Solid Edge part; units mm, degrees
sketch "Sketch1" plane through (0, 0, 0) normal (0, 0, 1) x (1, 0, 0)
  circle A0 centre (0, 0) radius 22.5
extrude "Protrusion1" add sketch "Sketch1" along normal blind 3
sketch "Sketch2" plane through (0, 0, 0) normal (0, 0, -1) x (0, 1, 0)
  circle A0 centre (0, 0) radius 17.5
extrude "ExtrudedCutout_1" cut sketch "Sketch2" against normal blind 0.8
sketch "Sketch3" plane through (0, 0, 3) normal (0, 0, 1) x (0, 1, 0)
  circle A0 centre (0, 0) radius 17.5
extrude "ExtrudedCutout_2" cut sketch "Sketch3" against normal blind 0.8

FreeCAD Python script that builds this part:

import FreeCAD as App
import Part
import Sketcher

V = App.Vector

doc = App.newDocument("Part")
body = doc.addObject("PartDesign::Body", "Body")

sketch1 = body.newObject("Sketcher::SketchObject", "Sketch")
sketch1.AttachmentSupport = (doc.getObject("XY_Plane"), [""])
sketch1.MapMode = "FlatFace"
sketch1.addGeometry(Part.Circle(V(0, 0, 0), V(0, 0, 1), 22.5), False)
sketch1.addConstraint(Sketcher.Constraint("Coincident", 0, 3, -1, 1))
sketch1.addConstraint(Sketcher.Constraint("Diameter", 0, 45.0))
pad1 = body.newObject("PartDesign::Pad", "Pad")
pad1.Profile = sketch1
pad1.Length = 3

sketch2 = body.newObject("Sketcher::SketchObject", "Sketch001")
sketch2.AttachmentSupport = (doc.getObject("XY_Plane"), [""])
sketch2.MapMode = "FlatFace"
sketch2.addGeometry(Part.Circle(V(0, 0, 0), V(0, 0, 1), 17.5), False)
sketch2.addConstraint(Sketcher.Constraint("Coincident", 0, 3, -1, 1))
sketch2.addConstraint(Sketcher.Constraint("Diameter", 0, 35.0))
pocket1 = body.newObject("PartDesign::Pocket", "Pocket")
pocket1.Profile = sketch2
pocket1.Length = 0.8
pocket1.Reversed = True

sketch3 = body.newObject("Sketcher::SketchObject", "Sketch002")
sketch3.AttachmentSupport = (doc.getObject("XY_Plane"), [""])
sketch3.MapMode = "FlatFace"
sketch3.AttachmentOffset = App.Placement(V(0, 0, 3), App.Rotation())
sketch3.addGeometry(Part.Circle(V(0, 0, 0), V(0, 0, 1), 17.5), False)
sketch3.addConstraint(Sketcher.Constraint("Coincident", 0, 3, -1, 1))
sketch3.addConstraint(Sketcher.Constraint("Diameter", 0, 35.0))
pocket2 = body.newObject("PartDesign::Pocket", "Pocket001")
pocket2.Profile = sketch3
pocket2.Length = 0.8

doc.recompute()
